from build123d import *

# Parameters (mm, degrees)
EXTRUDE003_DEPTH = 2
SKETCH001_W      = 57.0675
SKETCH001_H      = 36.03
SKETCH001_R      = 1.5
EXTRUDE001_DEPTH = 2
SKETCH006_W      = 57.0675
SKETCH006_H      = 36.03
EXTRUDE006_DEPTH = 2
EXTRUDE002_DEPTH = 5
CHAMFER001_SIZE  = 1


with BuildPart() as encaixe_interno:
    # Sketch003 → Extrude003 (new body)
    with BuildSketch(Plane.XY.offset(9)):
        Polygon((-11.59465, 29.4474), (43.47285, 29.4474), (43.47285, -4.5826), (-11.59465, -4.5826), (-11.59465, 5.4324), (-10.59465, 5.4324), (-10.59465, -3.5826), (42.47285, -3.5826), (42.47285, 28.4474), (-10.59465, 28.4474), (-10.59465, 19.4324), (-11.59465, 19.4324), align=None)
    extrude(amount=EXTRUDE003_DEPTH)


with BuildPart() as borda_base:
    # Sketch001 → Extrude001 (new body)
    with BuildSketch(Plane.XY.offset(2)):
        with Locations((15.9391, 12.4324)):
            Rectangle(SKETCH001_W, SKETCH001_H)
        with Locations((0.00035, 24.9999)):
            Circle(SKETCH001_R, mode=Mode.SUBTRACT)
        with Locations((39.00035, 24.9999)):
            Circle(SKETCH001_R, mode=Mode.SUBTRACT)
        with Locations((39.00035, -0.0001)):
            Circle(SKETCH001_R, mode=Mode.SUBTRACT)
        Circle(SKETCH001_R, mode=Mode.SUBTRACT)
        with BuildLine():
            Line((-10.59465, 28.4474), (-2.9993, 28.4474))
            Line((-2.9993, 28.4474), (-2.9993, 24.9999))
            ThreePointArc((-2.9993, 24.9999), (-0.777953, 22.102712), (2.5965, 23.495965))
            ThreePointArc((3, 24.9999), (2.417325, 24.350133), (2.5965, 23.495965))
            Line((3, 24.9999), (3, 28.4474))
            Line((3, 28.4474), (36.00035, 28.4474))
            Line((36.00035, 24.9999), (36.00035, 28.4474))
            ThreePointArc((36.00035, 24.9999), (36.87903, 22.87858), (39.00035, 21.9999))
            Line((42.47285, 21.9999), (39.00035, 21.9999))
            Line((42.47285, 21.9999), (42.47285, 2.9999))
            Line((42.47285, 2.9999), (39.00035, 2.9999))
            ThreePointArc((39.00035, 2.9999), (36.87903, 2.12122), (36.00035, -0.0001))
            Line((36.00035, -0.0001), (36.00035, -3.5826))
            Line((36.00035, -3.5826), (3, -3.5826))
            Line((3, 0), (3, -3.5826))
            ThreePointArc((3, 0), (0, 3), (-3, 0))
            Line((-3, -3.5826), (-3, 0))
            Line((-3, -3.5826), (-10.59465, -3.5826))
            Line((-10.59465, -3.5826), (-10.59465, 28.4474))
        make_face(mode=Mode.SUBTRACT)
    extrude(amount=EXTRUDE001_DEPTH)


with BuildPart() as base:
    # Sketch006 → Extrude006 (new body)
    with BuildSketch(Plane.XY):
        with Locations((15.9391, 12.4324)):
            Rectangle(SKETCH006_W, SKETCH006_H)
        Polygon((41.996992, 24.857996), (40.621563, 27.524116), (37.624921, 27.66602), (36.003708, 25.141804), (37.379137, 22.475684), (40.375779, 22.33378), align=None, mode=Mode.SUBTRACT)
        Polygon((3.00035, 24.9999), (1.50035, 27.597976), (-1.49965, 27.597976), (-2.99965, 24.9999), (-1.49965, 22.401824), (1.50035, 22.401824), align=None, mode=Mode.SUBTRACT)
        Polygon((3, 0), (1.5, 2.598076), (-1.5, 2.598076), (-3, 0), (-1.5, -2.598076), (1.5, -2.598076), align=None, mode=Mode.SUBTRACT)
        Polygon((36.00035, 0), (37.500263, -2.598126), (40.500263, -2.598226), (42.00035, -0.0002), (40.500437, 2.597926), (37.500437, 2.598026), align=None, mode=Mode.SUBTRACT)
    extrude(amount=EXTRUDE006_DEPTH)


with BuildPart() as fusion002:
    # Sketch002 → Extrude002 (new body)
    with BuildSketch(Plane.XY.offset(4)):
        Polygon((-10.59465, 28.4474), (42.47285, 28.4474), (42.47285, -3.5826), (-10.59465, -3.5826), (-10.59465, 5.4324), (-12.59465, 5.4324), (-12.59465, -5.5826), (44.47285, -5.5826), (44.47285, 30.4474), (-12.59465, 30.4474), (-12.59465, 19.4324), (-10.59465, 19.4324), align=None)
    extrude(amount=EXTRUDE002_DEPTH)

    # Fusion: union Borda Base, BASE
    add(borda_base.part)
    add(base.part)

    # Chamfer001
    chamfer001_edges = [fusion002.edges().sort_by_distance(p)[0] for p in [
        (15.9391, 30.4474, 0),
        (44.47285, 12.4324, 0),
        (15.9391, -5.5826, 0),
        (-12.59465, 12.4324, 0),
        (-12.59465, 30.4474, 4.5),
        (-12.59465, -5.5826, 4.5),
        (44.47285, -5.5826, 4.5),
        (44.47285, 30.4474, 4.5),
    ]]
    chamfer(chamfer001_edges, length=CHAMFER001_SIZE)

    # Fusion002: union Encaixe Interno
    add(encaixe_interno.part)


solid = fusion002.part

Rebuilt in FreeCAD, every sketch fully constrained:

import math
import FreeCAD as App
import Part
import Sketcher
from FreeCAD import Vector
Q = App.Units.Quantity


def edges_at(feature, points):
    """Names of the edges that pass closest to the given points."""
    edges = feature.Shape.Edges
    near = lambda p: min(range(len(edges)), key=lambda i: edges[i].distToShape(Part.Vertex(*p))[0])
    return sorted({f"Edge{near(p) + 1}" for p in points})

doc = App.newDocument("Part")
body = doc.addObject("PartDesign::Body", "Body")

sketch1 = body.newObject("Sketcher::SketchObject", "Sketch")
sketch1.AttachmentSupport = (doc.getObject("XY_Plane"), [""])
sketch1.MapMode = "FlatFace"
sketch1.AttachmentOffset = App.Placement(Vector(0, 0, 9), App.Rotation())
sketch1.addGeometry([
    Part.LineSegment(Vector(43.47285, 29.4474, 0), Vector(-11.59465, 29.4474, 0)),
    Part.LineSegment(Vector(-11.59465, 29.4474, 0), Vector(-11.59465, 19.4324, 0)),
    Part.LineSegment(Vector(-11.59465, 19.4324, 0), Vector(-10.59465, 19.4324, 0)),
    Part.LineSegment(Vector(-10.59465, 19.4324, 0), Vector(-10.59465, 28.4474, 0)),
    Part.LineSegment(Vector(-10.59465, 28.4474, 0), Vector(42.47285, 28.4474, 0)),
    Part.LineSegment(Vector(42.47285, 28.4474, 0), Vector(42.47285, -3.5826, 0)),
    Part.LineSegment(Vector(42.47285, -3.5826, 0), Vector(-10.59465, -3.5826, 0)),
    Part.LineSegment(Vector(-10.59465, -3.5826, 0), Vector(-10.59465, 5.4324, 0)),
    Part.LineSegment(Vector(-10.59465, 5.4324, 0), Vector(-11.59465, 5.4324, 0)),
    Part.LineSegment(Vector(-11.59465, 5.4324, 0), Vector(-11.59465, -4.5826, 0)),
    Part.LineSegment(Vector(-11.59465, -4.5826, 0), Vector(43.47285, -4.5826, 0)),
    Part.LineSegment(Vector(43.47285, -4.5826, 0), Vector(43.47285, 29.4474, 0)),
], False)
sketch1.addConstraint([
    Sketcher.Constraint("Coincident", 0, 2, 1, 1),
    Sketcher.Constraint("Coincident", 1, 2, 2, 1),
    Sketcher.Constraint("Coincident", 2, 2, 3, 1),
    Sketcher.Constraint("Coincident", 3, 2, 4, 1),
    Sketcher.Constraint("Coincident", 4, 2, 5, 1),
    Sketcher.Constraint("Coincident", 5, 2, 6, 1),
    Sketcher.Constraint("Coincident", 6, 2, 7, 1),
    Sketcher.Constraint("Coincident", 7, 2, 8, 1),
    Sketcher.Constraint("Coincident", 8, 2, 9, 1),
    Sketcher.Constraint("Coincident", 9, 2, 10, 1),
    Sketcher.Constraint("Coincident", 10, 2, 11, 1),
    Sketcher.Constraint("Coincident", 11, 2, 0, 1),
    Sketcher.Constraint("Horizontal", 0),
    Sketcher.Constraint("Vertical", 1),
    Sketcher.Constraint("Horizontal", 2),
    Sketcher.Constraint("Vertical", 3),
    Sketcher.Constraint("Horizontal", 4),
    Sketcher.Constraint("Vertical", 5),
    Sketcher.Constraint("Horizontal", 6),
    Sketcher.Constraint("Vertical", 7),
    Sketcher.Constraint("Horizontal", 8),
    Sketcher.Constraint("Vertical", 9),
    Sketcher.Constraint("Horizontal", 10),
    Sketcher.Constraint("Vertical", 11),
    Sketcher.Constraint("Vertical", 3, 2, 6, 2),
    Sketcher.Constraint("Vertical", 1, 2, 8, 2),
    Sketcher.Constraint("Equal", 3, 7),
    Sketcher.Constraint("Equal", 1, 9),
    Sketcher.Constraint("DistanceX", 2, 1, 2, 2, Q("1 mm")),
    Sketcher.Constraint("DistanceY", 3, 2, 0, 2, Q("1 mm")),
    Sketcher.Constraint("DistanceY", 7, 2, 2, 2, Q("14 mm")),
    Sketcher.Constraint("DistanceX", 5, 2, 10, 2, Q("1 mm")),
    Sketcher.Constraint("DistanceY", 5, 2, 5, 1, Q("32.03 mm")),
    Sketcher.Constraint("DistanceX", 0, 2, 0, 1, Q("55.0675 mm")),
    Sketcher.Constraint("DistanceY", -1, 1, 0, 2, Q("29.4474 mm")),
    Sketcher.Constraint("DistanceX", 0, 2, -1, 1, Q("11.59465 mm")),
])
pad1 = body.newObject("PartDesign::Pad", "Pad")
pad1.Profile = sketch1
pad1.Length = 2
body2 = doc.addObject("PartDesign::Body", "Body001")

sketch2 = body2.newObject("Sketcher::SketchObject", "Sketch001")
sketch2.AttachmentSupport = (doc.getObject("XY_Plane001"), [""])
sketch2.MapMode = "FlatFace"
sketch2.AttachmentOffset = App.Placement(Vector(0, 0, 2), App.Rotation())
sketch2.addGeometry([
    Part.LineSegment(Vector(-12.59465, 30.4474, 0), Vector(-12.59465, -5.5826, 0)),
    Part.LineSegment(Vector(-12.59465, -5.5826, 0), Vector(44.47285, -5.5826, 0)),
    Part.LineSegment(Vector(44.47285, -5.5826, 0), Vector(44.47285, 30.4474, 0)),
    Part.LineSegment(Vector(44.47285, 30.4474, 0), Vector(-12.59465, 30.4474, 0)),
    Part.Circle(Vector(0, 0, 0), Vector(0, 0, 1), 1.5),
    Part.Circle(Vector(39.00035, -0.0001, 0), Vector(0, 0, 1), 1.5),
    Part.Circle(Vector(0.00035, 24.9999, 0), Vector(0, 0, 1), 1.5),
    Part.LineSegment(Vector(-10.59465, -3.5826, 0), Vector(-10.59465, 28.4474, 0)),
    Part.LineSegment(Vector(-10.59465, 28.4474, 0), Vector(-2.9993, 28.4474, 0)),
    Part.LineSegment(Vector(-2.9993, 28.4474, 0), Vector(-2.9993, 24.9999, 0)),
    Part.ArcOfCircle(Part.Circle(Vector(0.0007, 24.9999, 0), Vector(0, 0, 1), 3), math.radians(-179.999998), math.radians(-30.086821)),
    Part.ArcOfCircle(Part.Circle(Vector(3.350001, 24.0999, 0), Vector(0, 0, 1), 0.965661), math.radians(111.250548), math.radians(218.712358)),
    Part.LineSegment(Vector(3, 24.9999, 0), Vector(3, 28.4474, 0)),
    Part.LineSegment(Vector(3, 28.4474, 0), Vector(36.00035, 28.4474, 0)),
    Part.LineSegment(Vector(36.00035, 28.4474, 0), Vector(36.00035, 24.9999, 0)),
    Part.ArcOfCircle(Part.Circle(Vector(39.000351, 24.999901, 0), Vector(0, 0, 1), 3.000001), math.radians(-179.999978), math.radians(-90.000022)),
    Part.LineSegment(Vector(39.00035, 21.9999, 0), Vector(42.47285, 21.9999, 0)),
    Part.LineSegment(Vector(42.47285, 21.9999, 0), Vector(42.47285, 2.9999, 0)),
    Part.LineSegment(Vector(42.47285, 2.9999, 0), Vector(39.00035, 2.9999, 0)),
    Part.ArcOfCircle(Part.Circle(Vector(39.000351, -0.000101, 0), Vector(0, 0, 1), 3.000001), math.radians(90.000022), math.radians(179.999978)),
    Part.LineSegment(Vector(36.00035, -0.0001, 0), Vector(36.00035, -3.5826, 0)),
    Part.LineSegment(Vector(36.00035, -3.5826, 0), Vector(3, -3.5826, 0)),
    Part.LineSegment(Vector(3, -3.5826, 0), Vector(3, 0, 0)),
    Part.ArcOfCircle(Part.Circle(Vector(0, 0, 0), Vector(0, 0, 1), 3), math.radians(0), math.radians(180)),
    Part.LineSegment(Vector(-3, 0, 0), Vector(-3, -3.5826, 0)),
    Part.LineSegment(Vector(-3, -3.5826, 0), Vector(-10.59465, -3.5826, 0)),
    Part.Circle(Vector(39.00035, 24.9999, 0), Vector(0, 0, 1), 1.5),
], False)
sketch2.addConstraint([
    Sketcher.Constraint("Coincident", 0, 2, 1, 1),
    Sketcher.Constraint("Coincident", 1, 2, 2, 1),
    Sketcher.Constraint("Coincident", 2, 2, 3, 1),
    Sketcher.Constraint("Coincident", 3, 2, 0, 1),
    Sketcher.Constraint("Coincident", 7, 2, 8, 1),
    Sketcher.Constraint("Coincident", 8, 2, 9, 1),
    Sketcher.Constraint("Tangent", 9, 2, 10, 1),
    Sketcher.Constraint("Coincident", 10, 2, 11, 2),
    Sketcher.Constraint("Coincident", 11, 1, 12, 1),
    Sketcher.Constraint("Coincident", 12, 2, 13, 1),
    Sketcher.Constraint("Coincident", 13, 2, 14, 1),
    Sketcher.Constraint("Tangent", 14, 2, 15, 1),
    Sketcher.Constraint("Tangent", 15, 2, 16, 1),
    Sketcher.Constraint("Coincident", 16, 2, 17, 1),
    Sketcher.Constraint("Coincident", 17, 2, 18, 1),
    Sketcher.Constraint("Tangent", 18, 2, 19, 1),
    Sketcher.Constraint("Tangent", 19, 2, 20, 1),
    Sketcher.Constraint("Coincident", 20, 2, 21, 1),
    Sketcher.Constraint("Coincident", 21, 2, 22, 1),
    Sketcher.Constraint("Tangent", 22, 2, 23, 1),
    Sketcher.Constraint("Tangent", 23, 2, 24, 1),
    Sketcher.Constraint("Coincident", 24, 2, 25, 1),
    Sketcher.Constraint("Coincident", 25, 2, 7, 1),
    Sketcher.Constraint("Vertical", 0),
    Sketcher.Constraint("Horizontal", 1),
    Sketcher.Constraint("Vertical", 2),
    Sketcher.Constraint("Horizontal", 3),
    Sketcher.Constraint("Vertical", 7),
    Sketcher.Constraint("Horizontal", 8),
    Sketcher.Constraint("Vertical", 9),
    Sketcher.Constraint("Vertical", 12),
    Sketcher.Constraint("Horizontal", 13),
    Sketcher.Constraint("Vertical", 14),
    Sketcher.Constraint("Horizontal", 16),
    Sketcher.Constraint("Vertical", 17),
    Sketcher.Constraint("Horizontal", 18),
    Sketcher.Constraint("Vertical", 20),
    Sketcher.Constraint("Horizontal", 21),
    Sketcher.Constraint("Vertical", 22),
    Sketcher.Constraint("Vertical", 24),
    Sketcher.Constraint("Horizontal", 25),
    Sketcher.Constraint("Coincident", 4, 3, -1, 1),
    Sketcher.Constraint("Coincident", 23, 3, -1, 1),
    Sketcher.Constraint("Coincident", 19, 3, 5, 3),
    Sketcher.Constraint("Coincident", 26, 3, 15, 3),
    Sketcher.Constraint("Equal", 4, 5),
    Sketcher.Constraint("Equal", 5, 6),
    Sketcher.Constraint("Equal", 10, 15),
    Sketcher.Constraint("Equal", 15, 19),
    Sketcher.Constraint("Equal", 19, 23),
    Sketcher.Constraint("Equal", 6, 26),
    Sketcher.Constraint("Horizontal", 6, 3, 10, 3),
    Sketcher.Constraint("Horizontal", 10, 3, 15, 3),
    Sketcher.Constraint("Horizontal", 9, 2, 11, 1),
    Sketcher.Constraint("Horizontal", 8, 2, 12, 2),
    Sketcher.Constraint("Horizontal", 21, 2, 24, 2),
    Sketcher.Constraint("Vertical", 5, 3, 15, 3),
    Sketcher.Constraint("Vertical", 12, 2, 21, 2),
    Sketcher.Constraint("Diameter", 4, Q("3 mm")),
    Sketcher.Constraint("Radius", 10, Q("3 mm")),
    Sketcher.Constraint("DistanceY", 17, 2, 17, 1, Q("19 mm")),
    Sketcher.Constraint("DistanceX", 6, 3, 5, 3, Q("39 mm")),
    Sketcher.Constraint("DistanceX", 3, 2, 7, 2, Q("2 mm")),
    Sketcher.Constraint("DistanceY", 7, 2, 3, 2, Q("2 mm")),
    Sketcher.Constraint("DistanceX", 16, 2, 2, 2, Q("2 mm")),
    Sketcher.Constraint("DistanceY", 1, 2, 20, 2, Q("2 mm")),
    Sketcher.Constraint("DistanceY", 0, 2, 0, 1, Q("36.03 mm")),
    Sketcher.Constraint("DistanceY", 11, 3, 10, 3, Q("0.9 mm")),
    Sketcher.Constraint("DistanceX", -1, 1, 11, 3, Q("3.350001 mm")),
    Sketcher.Constraint("DistanceX", 1, 1, 1, 2, Q("57.0675 mm")),
    Sketcher.Constraint("DistanceX", 16, 1, 16, 2, Q("3.4725 mm")),
    Sketcher.Constraint("DistanceY", 9, 2, 9, 1, Q("3.4475 mm")),
    Sketcher.Constraint("DistanceY", 22, 1, 22, 2, Q("3.5826 mm")),
    Sketcher.Constraint("DistanceX", 8, 1, 8, 2, Q("7.59535 mm")),
    Sketcher.Constraint("DistanceX", 13, 1, 13, 2, Q("33.00035 mm")),
])
pad2 = body2.newObject("PartDesign::Pad", "Pad001")
pad2.Profile = sketch2
pad2.Length = 2
body3 = doc.addObject("PartDesign::Body", "Body002")

sketch3 = body3.newObject("Sketcher::SketchObject", "Sketch002")
sketch3.AttachmentSupport = (doc.getObject("XY_Plane002"), [""])
sketch3.MapMode = "FlatFace"
sketch3.addGeometry([
    Part.LineSegment(Vector(-12.59465, 30.4474, 0), Vector(-12.59465, -5.5826, 0)),
    Part.LineSegment(Vector(-12.59465, -5.5826, 0), Vector(44.47285, -5.5826, 0)),
    Part.LineSegment(Vector(44.47285, -5.5826, 0), Vector(44.47285, 30.4474, 0)),
    Part.LineSegment(Vector(44.47285, 30.4474, 0), Vector(-12.59465, 30.4474, 0)),
    Part.LineSegment(Vector(1.5, 2.598076, 0), Vector(3, 0, 0)),
    Part.LineSegment(Vector(3, 0, 0), Vector(1.5, -2.598076, 0)),
    Part.LineSegment(Vector(1.5, -2.598076, 0), Vector(-1.5, -2.598076, 0)),
    Part.LineSegment(Vector(-1.5, -2.598076, 0), Vector(-3, 0, 0)),
    Part.LineSegment(Vector(-3, 0, 0), Vector(-1.5, 2.598076, 0)),
    Part.LineSegment(Vector(-1.5, 2.598076, 0), Vector(1.5, 2.598076, 0)),
    Part.LineSegment(Vector(37.500263, -2.598126, 0), Vector(36.00035, 0, 0)),
    Part.LineSegment(Vector(36.00035, 0, 0), Vector(37.500437, 2.598026, 0)),
    Part.LineSegment(Vector(37.500437, 2.598026, 0), Vector(40.500437, 2.597926, 0)),
    Part.LineSegment(Vector(40.500437, 2.597926, 0), Vector(42.00035, -0.0002, 0)),
    Part.LineSegment(Vector(42.00035, -0.0002, 0), Vector(40.500263, -2.598226, 0)),
    Part.LineSegment(Vector(40.500263, -2.598226, 0), Vector(37.500263, -2.598126, 0)),
    Part.LineSegment(Vector(1.50035, 27.597976, 0), Vector(3.00035, 24.9999, 0)),
    Part.LineSegment(Vector(3.00035, 24.9999, 0), Vector(1.50035, 22.401824, 0)),
    Part.LineSegment(Vector(1.50035, 22.401824, 0), Vector(-1.49965, 22.401824, 0)),
    Part.LineSegment(Vector(-1.49965, 22.401824, 0), Vector(-2.99965, 24.9999, 0)),
    Part.LineSegment(Vector(-2.99965, 24.9999, 0), Vector(-1.49965, 27.597976, 0)),
    Part.LineSegment(Vector(-1.49965, 27.597976, 0), Vector(1.50035, 27.597976, 0)),
    Part.LineSegment(Vector(40.621563, 27.524116, 0), Vector(41.996992, 24.857996, 0)),
    Part.LineSegment(Vector(41.996992, 24.857996, 0), Vector(40.375779, 22.33378, 0)),
    Part.LineSegment(Vector(40.375779, 22.33378, 0), Vector(37.379137, 22.475684, 0)),
    Part.LineSegment(Vector(37.379137, 22.475684, 0), Vector(36.003708, 25.141804, 0)),
    Part.LineSegment(Vector(36.003708, 25.141804, 0), Vector(37.624921, 27.66602, 0)),
    Part.LineSegment(Vector(37.624921, 27.66602, 0), Vector(40.621563, 27.524116, 0)),
], False)
sketch3.addConstraint([
    Sketcher.Constraint("Coincident", 0, 2, 1, 1),
    Sketcher.Constraint("Coincident", 1, 2, 2, 1),
    Sketcher.Constraint("Coincident", 2, 2, 3, 1),
    Sketcher.Constraint("Coincident", 3, 2, 0, 1),
    Sketcher.Constraint("Coincident", 4, 2, 5, 1),
    Sketcher.Constraint("Coincident", 5, 2, 6, 1),
    Sketcher.Constraint("Coincident", 6, 2, 7, 1),
    Sketcher.Constraint("Coincident", 7, 2, 8, 1),
    Sketcher.Constraint("Coincident", 8, 2, 9, 1),
    Sketcher.Constraint("Coincident", 9, 2, 4, 1),
    Sketcher.Constraint("Coincident", 10, 2, 11, 1),
    Sketcher.Constraint("Coincident", 11, 2, 12, 1),
    Sketcher.Constraint("Coincident", 12, 2, 13, 1),
    Sketcher.Constraint("Coincident", 13, 2, 14, 1),
    Sketcher.Constraint("Coincident", 14, 2, 15, 1),
    Sketcher.Constraint("Coincident", 15, 2, 10, 1),
    Sketcher.Constraint("Coincident", 16, 2, 17, 1),
    Sketcher.Constraint("Coincident", 17, 2, 18, 1),
    Sketcher.Constraint("Coincident", 18, 2, 19, 1),
    Sketcher.Constraint("Coincident", 19, 2, 20, 1),
    Sketcher.Constraint("Coincident", 20, 2, 21, 1),
    Sketcher.Constraint("Coincident", 21, 2, 16, 1),
    Sketcher.Constraint("Coincident", 22, 2, 23, 1),
    Sketcher.Constraint("Coincident", 23, 2, 24, 1),
    Sketcher.Constraint("Coincident", 24, 2, 25, 1),
    Sketcher.Constraint("Coincident", 25, 2, 26, 1),
    Sketcher.Constraint("Coincident", 26, 2, 27, 1),
    Sketcher.Constraint("Coincident", 27, 2, 22, 1),
    Sketcher.Constraint("Vertical", 0),
    Sketcher.Constraint("Horizontal", 1),
    Sketcher.Constraint("Vertical", 2),
    Sketcher.Constraint("Horizontal", 3),
    Sketcher.Constraint("Horizontal", 6),
    Sketcher.Constraint("Horizontal", 9),
    Sketcher.Constraint("Horizontal", 18),
    Sketcher.Constraint("Horizontal", 21),
    Sketcher.Constraint("Symmetric", 4, 2, 7, 2, -1, 1),
    Sketcher.Constraint("Symmetric", 5, 2, 8, 2, -1, 1),
    Sketcher.Constraint("PointOnObject", 4, 2, -1),
    Sketcher.Constraint("PointOnObject", 10, 2, -1),
    Sketcher.Constraint("Parallel", 4, 7),
    Sketcher.Constraint("Parallel", 10, 13),
    Sketcher.Constraint("Parallel", 11, 14),
    Sketcher.Constraint("Parallel", 12, 15),
    Sketcher.Constraint("Parallel", 7, 16),
    Sketcher.Constraint("Parallel", 8, 17),
    Sketcher.Constraint("Parallel", 16, 19),
    Sketcher.Constraint("Parallel", 17, 20),
    Sketcher.Constraint("Parallel", 22, 25),
    Sketcher.Constraint("Parallel", 23, 26),
    Sketcher.Constraint("Parallel", 24, 27),
    Sketcher.Constraint("Horizontal", 16, 2, 19, 2),
    Sketcher.Constraint("Vertical", 6, 2, 8, 2),
    Sketcher.Constraint("Vertical", 18, 2, 20, 2),
    Sketcher.Constraint("Equal", 9, 18),
    Sketcher.Constraint("Equal", 8, 10),
    Sketcher.Constraint("Equal", 10, 11),
    Sketcher.Constraint("Equal", 11, 12),
    Sketcher.Constraint("Equal", 12, 13),
    Sketcher.Constraint("Equal", 15, 16),
    Sketcher.Constraint("Equal", 20, 22),
    Sketcher.Constraint("Equal", 22, 23),
    Sketcher.Constraint("Equal", 23, 24),
    Sketcher.Constraint("Equal", 24, 25),
    Sketcher.Constraint("DistanceX", 6, 2, 6, 1, Q("3 mm")),
    Sketcher.Constraint("Angle", 4, Q("-59.999998 deg")),
    Sketcher.Constraint("Distance", 4, Q("3 mm")),
    Sketcher.Constraint("DistanceX", 10, 2, 13, 2, Q("6 mm")),
    Sketcher.Constraint("DistanceY", 0, 2, 0, 1, Q("36.03 mm")),
    Sketcher.Constraint("DistanceX", 1, 1, 1, 2, Q("57.0675 mm")),
    Sketcher.Constraint("DistanceX", 3, 2, 16, 2, Q("15.595 mm")),
    Sketcher.Constraint("DistanceY", 0, 2, -1, 1, Q("5.5826 mm")),
    Sketcher.Constraint("DistanceY", 13, 2, -1, 1, Q("0.0002 mm")),
    Sketcher.Constraint("DistanceY", -1, 1, 16, 2, Q("24.9999 mm")),
    Sketcher.Constraint("DistanceX", 10, 2, 1, 2, Q("8.4725 mm")),
    Sketcher.Constraint("DistanceX", 24, 2, 11, 2, Q("0.1213 mm")),
    Sketcher.Constraint("DistanceX", 0, 2, -1, 1, Q("12.59465 mm")),
    Sketcher.Constraint("DistanceX", -1, 1, 23, 2, Q("40.375779 mm")),
    Sketcher.Constraint("DistanceY", -1, 1, 23, 2, Q("22.33378 mm")),
    Sketcher.Constraint("DistanceX", -1, 1, 25, 2, Q("36.003708 mm")),
    Sketcher.Constraint("DistanceX", -1, 1, 26, 2, Q("37.624921 mm")),
    Sketcher.Constraint("DistanceY", -1, 1, 26, 2, Q("27.66602 mm")),
])
pad3 = body3.newObject("PartDesign::Pad", "Pad002")
pad3.Profile = sketch3
pad3.Length = 2
body4 = doc.addObject("PartDesign::Body", "Body003")

sketch4 = body4.newObject("Sketcher::SketchObject", "Sketch003")
sketch4.AttachmentSupport = (doc.getObject("XY_Plane003"), [""])
sketch4.MapMode = "FlatFace"
sketch4.AttachmentOffset = App.Placement(Vector(0, 0, 4), App.Rotation())
sketch4.addGeometry([
    Part.LineSegment(Vector(-10.59465, 28.4474, 0), Vector(42.47285, 28.4474, 0)),
    Part.LineSegment(Vector(42.47285, 28.4474, 0), Vector(42.47285, -3.5826, 0)),
    Part.LineSegment(Vector(42.47285, -3.5826, 0), Vector(-10.59465, -3.5826, 0)),
    Part.LineSegment(Vector(-10.59465, -3.5826, 0), Vector(-10.59465, 5.4324, 0)),
    Part.LineSegment(Vector(-10.59465, 5.4324, 0), Vector(-12.59465, 5.4324, 0)),
    Part.LineSegment(Vector(-12.59465, 5.4324, 0), Vector(-12.59465, -5.5826, 0)),
    Part.LineSegment(Vector(-12.59465, -5.5826, 0), Vector(44.47285, -5.5826, 0)),
    Part.LineSegment(Vector(44.47285, -5.5826, 0), Vector(44.47285, 30.4474, 0)),
    Part.LineSegment(Vector(44.47285, 30.4474, 0), Vector(-12.59465, 30.4474, 0)),
    Part.LineSegment(Vector(-12.59465, 30.4474, 0), Vector(-12.59465, 19.4324, 0)),
    Part.LineSegment(Vector(-12.59465, 19.4324, 0), Vector(-10.59465, 19.4324, 0)),
    Part.LineSegment(Vector(-10.59465, 19.4324, 0), Vector(-10.59465, 28.4474, 0)),
], False)
sketch4.addConstraint([
    Sketcher.Constraint("Coincident", 0, 2, 1, 1),
    Sketcher.Constraint("Coincident", 1, 2, 2, 1),
    Sketcher.Constraint("Coincident", 2, 2, 3, 1),
    Sketcher.Constraint("Coincident", 3, 2, 4, 1),
    Sketcher.Constraint("Coincident", 4, 2, 5, 1),
    Sketcher.Constraint("Coincident", 5, 2, 6, 1),
    Sketcher.Constraint("Coincident", 6, 2, 7, 1),
    Sketcher.Constraint("Coincident", 7, 2, 8, 1),
    Sketcher.Constraint("Coincident", 8, 2, 9, 1),
    Sketcher.Constraint("Coincident", 9, 2, 10, 1),
    Sketcher.Constraint("Coincident", 10, 2, 11, 1),
    Sketcher.Constraint("Coincident", 11, 2, 0, 1),
    Sketcher.Constraint("Horizontal", 0),
    Sketcher.Constraint("Vertical", 1),
    Sketcher.Constraint("Horizontal", 2),
    Sketcher.Constraint("Vertical", 3),
    Sketcher.Constraint("Horizontal", 4),
    Sketcher.Constraint("Vertical", 5),
    Sketcher.Constraint("Horizontal", 6),
    Sketcher.Constraint("Vertical", 7),
    Sketcher.Constraint("Horizontal", 8),
    Sketcher.Constraint("Vertical", 9),
    Sketcher.Constraint("Horizontal", 10),
    Sketcher.Constraint("Vertical", 11),
    Sketcher.Constraint("Vertical", 5, 2, 8, 2),
    Sketcher.Constraint("Vertical", 3, 2, 10, 2),
    Sketcher.Constraint("Equal", 5, 9),
    Sketcher.Constraint("Equal", 3, 11),
    Sketcher.Constraint("DistanceX", 4, 2, 4, 1, Q("2 mm")),
    Sketcher.Constraint("DistanceY", 5, 2, 2, 2, Q("2 mm")),
    Sketcher.Constraint("DistanceX", 1, 2, 6, 2, Q("2 mm")),
    Sketcher.Constraint("DistanceY", 4, 2, 9, 2, Q("14 mm")),
    Sketcher.Constraint("DistanceY", 1, 2, 1, 1, Q("32.03 mm")),
    Sketcher.Constraint("DistanceX", 0, 1, 0, 2, Q("53.0675 mm")),
    Sketcher.Constraint("DistanceY", -1, 1, 0, 2, Q("28.4474 mm")),
    Sketcher.Constraint("DistanceX", -1, 1, 0, 2, Q("42.47285 mm")),
])
pad4 = body4.newObject("PartDesign::Pad", "Pad003")
pad4.Profile = sketch4
pad4.Length = 5
doc.recompute()

boolean = body4.newObject("PartDesign::Boolean", "Boolean")
boolean.Type = "Fuse"
boolean.addObjects([body2])
doc.recompute()

boolean2 = body4.newObject("PartDesign::Boolean", "Boolean001")
boolean2.Type = "Fuse"
boolean2.addObjects([body3])
doc.recompute()

chamfer = body4.newObject("PartDesign::Chamfer", "Chamfer")
chamfer.Base = (boolean2, edges_at(boolean2, [
    (15.939, 30.447, 0),
    (44.473, 12.432, 0),
    (15.939, -5.583, 0),
    (-12.595, 12.432, 0),
    (-12.595, 30.447, 4.5),
    (-12.595, -5.583, 4.5),
    (44.473, -5.583, 4.5),
    (44.473, 30.447, 4.5),
]))
chamfer.Size = 1
doc.recompute()

boolean3 = body4.newObject("PartDesign::Boolean", "Boolean002")
boolean3.Type = "Fuse"
boolean3.addObjects([body])

doc.recompute()
